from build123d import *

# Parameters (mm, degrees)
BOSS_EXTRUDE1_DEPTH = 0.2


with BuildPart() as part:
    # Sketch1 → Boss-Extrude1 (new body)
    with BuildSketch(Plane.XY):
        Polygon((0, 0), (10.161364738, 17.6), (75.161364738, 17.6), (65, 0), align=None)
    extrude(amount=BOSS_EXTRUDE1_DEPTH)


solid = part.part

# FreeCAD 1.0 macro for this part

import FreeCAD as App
import Part
import Sketcher
from FreeCAD import Vector
Q = App.Units.Quantity

doc = App.newDocument("Part")
body = doc.addObject("PartDesign::Body", "Body")

# Sketch on XY plane
sketch1 = body.newObject("Sketcher::SketchObject", "Sketch")
sketch1.AttachmentSupport = (doc.getObject("XY_Plane"), [""])
sketch1.MapMode = "FlatFace"
sketch1.addGeometry([
    Part.LineSegment(Vector(10, 18, 0), Vector(0, 0, 0)),
    Part.LineSegment(Vector(0, 0, 0), Vector(65, 0, 0)),
    Part.LineSegment(Vector(65, 0, 0), Vector(75, 18, 0)),
    Part.LineSegment(Vector(75, 18, 0), Vector(10, 18, 0)),
], False)
sketch1.addConstraint([
    Sketcher.Constraint("Coincident", 0, 2, 1, 1),
    Sketcher.Constraint("Coincident", 1, 2, 2, 1),
    Sketcher.Constraint("Coincident", 2, 2, 3, 1),
    Sketcher.Constraint("Coincident", 3, 2, 0, 1),
    Sketcher.Constraint("Horizontal", 1),
    Sketcher.Constraint("Horizontal", 3),
    Sketcher.Constraint("Coincident", 0, 2, -1, 1),
    Sketcher.Constraint("Parallel", 0, 2),
    Sketcher.Constraint("DistanceX", 1, 1, 1, 2, 65.0),
    Sketcher.Constraint("Angle", 0, Q("-120 deg")),
    Sketcher.Constraint("DistanceY", -1, 1, 2, 2, 17.6),
])
pad1 = body.newObject("PartDesign::Pad", "Pad")
pad1.Profile = sketch1
pad1.Length = 0.2

doc.recompute()
